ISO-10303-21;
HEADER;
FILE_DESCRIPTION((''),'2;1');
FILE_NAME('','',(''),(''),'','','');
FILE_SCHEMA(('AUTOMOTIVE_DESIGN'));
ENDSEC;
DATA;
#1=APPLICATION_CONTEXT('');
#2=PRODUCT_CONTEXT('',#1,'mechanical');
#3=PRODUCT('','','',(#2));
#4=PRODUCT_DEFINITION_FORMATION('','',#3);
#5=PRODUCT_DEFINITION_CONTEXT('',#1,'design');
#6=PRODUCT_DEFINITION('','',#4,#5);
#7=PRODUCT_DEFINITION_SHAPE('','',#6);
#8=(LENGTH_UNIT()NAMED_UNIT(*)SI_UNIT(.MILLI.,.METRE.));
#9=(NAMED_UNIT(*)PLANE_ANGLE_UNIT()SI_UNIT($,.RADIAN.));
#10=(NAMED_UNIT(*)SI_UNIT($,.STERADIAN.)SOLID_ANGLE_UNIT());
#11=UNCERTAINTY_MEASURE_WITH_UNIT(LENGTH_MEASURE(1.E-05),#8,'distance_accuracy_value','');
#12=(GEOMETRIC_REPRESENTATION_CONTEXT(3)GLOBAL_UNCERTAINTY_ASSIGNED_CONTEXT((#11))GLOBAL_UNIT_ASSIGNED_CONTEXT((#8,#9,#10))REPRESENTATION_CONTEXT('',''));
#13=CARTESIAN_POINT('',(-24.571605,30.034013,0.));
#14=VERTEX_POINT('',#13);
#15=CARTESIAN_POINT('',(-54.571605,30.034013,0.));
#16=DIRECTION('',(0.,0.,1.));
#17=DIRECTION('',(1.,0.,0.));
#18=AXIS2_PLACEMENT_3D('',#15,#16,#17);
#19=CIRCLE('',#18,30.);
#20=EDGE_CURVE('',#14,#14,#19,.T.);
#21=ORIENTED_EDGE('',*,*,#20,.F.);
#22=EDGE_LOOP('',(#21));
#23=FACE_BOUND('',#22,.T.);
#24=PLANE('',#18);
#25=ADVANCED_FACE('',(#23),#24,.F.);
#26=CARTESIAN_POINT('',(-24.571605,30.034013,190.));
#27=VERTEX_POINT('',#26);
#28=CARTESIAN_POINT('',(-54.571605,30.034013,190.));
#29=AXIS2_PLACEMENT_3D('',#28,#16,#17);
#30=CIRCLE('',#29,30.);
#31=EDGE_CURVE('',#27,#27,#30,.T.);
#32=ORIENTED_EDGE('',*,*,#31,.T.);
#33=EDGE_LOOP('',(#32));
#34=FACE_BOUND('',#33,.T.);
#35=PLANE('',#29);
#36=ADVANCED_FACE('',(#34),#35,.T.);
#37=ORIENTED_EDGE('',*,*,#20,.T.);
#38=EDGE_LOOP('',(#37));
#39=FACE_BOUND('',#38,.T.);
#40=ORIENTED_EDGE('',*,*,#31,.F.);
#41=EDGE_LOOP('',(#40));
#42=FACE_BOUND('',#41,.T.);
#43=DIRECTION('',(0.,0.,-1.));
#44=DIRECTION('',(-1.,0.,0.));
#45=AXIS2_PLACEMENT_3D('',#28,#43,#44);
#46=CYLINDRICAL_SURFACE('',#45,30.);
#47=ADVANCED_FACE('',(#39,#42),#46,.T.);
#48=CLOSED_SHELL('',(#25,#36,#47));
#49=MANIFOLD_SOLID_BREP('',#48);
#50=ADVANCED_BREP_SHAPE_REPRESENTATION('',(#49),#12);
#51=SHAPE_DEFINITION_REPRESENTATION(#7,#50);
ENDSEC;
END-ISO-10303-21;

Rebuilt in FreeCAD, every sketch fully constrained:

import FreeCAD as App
import Part
import Sketcher

V = App.Vector
Q = App.Units.Quantity

doc = App.newDocument("Part")
body = doc.addObject("PartDesign::Body", "Body")

sketch1 = body.newObject("Sketcher::SketchObject", "Sketch")
sketch1.AttachmentSupport = (doc.getObject("XY_Plane"), [""])
sketch1.MapMode = "FlatFace"
sketch1.addGeometry(Part.Circle(V(-55, 30, 0), V(0, 0, 1), 30), False)
sketch1.addConstraint([
    Sketcher.Constraint("Diameter", 0, Q("60 mm")),
    Sketcher.Constraint("DistanceX", 0, 3, -1, 1, Q("54.571605 mm")),
    Sketcher.Constraint("DistanceY", -1, 1, 0, 3, Q("30.034013 mm")),
])
pad1 = body.newObject("PartDesign::Pad", "Pad")
pad1.Profile = sketch1
pad1.Length = 190

doc.recompute()
